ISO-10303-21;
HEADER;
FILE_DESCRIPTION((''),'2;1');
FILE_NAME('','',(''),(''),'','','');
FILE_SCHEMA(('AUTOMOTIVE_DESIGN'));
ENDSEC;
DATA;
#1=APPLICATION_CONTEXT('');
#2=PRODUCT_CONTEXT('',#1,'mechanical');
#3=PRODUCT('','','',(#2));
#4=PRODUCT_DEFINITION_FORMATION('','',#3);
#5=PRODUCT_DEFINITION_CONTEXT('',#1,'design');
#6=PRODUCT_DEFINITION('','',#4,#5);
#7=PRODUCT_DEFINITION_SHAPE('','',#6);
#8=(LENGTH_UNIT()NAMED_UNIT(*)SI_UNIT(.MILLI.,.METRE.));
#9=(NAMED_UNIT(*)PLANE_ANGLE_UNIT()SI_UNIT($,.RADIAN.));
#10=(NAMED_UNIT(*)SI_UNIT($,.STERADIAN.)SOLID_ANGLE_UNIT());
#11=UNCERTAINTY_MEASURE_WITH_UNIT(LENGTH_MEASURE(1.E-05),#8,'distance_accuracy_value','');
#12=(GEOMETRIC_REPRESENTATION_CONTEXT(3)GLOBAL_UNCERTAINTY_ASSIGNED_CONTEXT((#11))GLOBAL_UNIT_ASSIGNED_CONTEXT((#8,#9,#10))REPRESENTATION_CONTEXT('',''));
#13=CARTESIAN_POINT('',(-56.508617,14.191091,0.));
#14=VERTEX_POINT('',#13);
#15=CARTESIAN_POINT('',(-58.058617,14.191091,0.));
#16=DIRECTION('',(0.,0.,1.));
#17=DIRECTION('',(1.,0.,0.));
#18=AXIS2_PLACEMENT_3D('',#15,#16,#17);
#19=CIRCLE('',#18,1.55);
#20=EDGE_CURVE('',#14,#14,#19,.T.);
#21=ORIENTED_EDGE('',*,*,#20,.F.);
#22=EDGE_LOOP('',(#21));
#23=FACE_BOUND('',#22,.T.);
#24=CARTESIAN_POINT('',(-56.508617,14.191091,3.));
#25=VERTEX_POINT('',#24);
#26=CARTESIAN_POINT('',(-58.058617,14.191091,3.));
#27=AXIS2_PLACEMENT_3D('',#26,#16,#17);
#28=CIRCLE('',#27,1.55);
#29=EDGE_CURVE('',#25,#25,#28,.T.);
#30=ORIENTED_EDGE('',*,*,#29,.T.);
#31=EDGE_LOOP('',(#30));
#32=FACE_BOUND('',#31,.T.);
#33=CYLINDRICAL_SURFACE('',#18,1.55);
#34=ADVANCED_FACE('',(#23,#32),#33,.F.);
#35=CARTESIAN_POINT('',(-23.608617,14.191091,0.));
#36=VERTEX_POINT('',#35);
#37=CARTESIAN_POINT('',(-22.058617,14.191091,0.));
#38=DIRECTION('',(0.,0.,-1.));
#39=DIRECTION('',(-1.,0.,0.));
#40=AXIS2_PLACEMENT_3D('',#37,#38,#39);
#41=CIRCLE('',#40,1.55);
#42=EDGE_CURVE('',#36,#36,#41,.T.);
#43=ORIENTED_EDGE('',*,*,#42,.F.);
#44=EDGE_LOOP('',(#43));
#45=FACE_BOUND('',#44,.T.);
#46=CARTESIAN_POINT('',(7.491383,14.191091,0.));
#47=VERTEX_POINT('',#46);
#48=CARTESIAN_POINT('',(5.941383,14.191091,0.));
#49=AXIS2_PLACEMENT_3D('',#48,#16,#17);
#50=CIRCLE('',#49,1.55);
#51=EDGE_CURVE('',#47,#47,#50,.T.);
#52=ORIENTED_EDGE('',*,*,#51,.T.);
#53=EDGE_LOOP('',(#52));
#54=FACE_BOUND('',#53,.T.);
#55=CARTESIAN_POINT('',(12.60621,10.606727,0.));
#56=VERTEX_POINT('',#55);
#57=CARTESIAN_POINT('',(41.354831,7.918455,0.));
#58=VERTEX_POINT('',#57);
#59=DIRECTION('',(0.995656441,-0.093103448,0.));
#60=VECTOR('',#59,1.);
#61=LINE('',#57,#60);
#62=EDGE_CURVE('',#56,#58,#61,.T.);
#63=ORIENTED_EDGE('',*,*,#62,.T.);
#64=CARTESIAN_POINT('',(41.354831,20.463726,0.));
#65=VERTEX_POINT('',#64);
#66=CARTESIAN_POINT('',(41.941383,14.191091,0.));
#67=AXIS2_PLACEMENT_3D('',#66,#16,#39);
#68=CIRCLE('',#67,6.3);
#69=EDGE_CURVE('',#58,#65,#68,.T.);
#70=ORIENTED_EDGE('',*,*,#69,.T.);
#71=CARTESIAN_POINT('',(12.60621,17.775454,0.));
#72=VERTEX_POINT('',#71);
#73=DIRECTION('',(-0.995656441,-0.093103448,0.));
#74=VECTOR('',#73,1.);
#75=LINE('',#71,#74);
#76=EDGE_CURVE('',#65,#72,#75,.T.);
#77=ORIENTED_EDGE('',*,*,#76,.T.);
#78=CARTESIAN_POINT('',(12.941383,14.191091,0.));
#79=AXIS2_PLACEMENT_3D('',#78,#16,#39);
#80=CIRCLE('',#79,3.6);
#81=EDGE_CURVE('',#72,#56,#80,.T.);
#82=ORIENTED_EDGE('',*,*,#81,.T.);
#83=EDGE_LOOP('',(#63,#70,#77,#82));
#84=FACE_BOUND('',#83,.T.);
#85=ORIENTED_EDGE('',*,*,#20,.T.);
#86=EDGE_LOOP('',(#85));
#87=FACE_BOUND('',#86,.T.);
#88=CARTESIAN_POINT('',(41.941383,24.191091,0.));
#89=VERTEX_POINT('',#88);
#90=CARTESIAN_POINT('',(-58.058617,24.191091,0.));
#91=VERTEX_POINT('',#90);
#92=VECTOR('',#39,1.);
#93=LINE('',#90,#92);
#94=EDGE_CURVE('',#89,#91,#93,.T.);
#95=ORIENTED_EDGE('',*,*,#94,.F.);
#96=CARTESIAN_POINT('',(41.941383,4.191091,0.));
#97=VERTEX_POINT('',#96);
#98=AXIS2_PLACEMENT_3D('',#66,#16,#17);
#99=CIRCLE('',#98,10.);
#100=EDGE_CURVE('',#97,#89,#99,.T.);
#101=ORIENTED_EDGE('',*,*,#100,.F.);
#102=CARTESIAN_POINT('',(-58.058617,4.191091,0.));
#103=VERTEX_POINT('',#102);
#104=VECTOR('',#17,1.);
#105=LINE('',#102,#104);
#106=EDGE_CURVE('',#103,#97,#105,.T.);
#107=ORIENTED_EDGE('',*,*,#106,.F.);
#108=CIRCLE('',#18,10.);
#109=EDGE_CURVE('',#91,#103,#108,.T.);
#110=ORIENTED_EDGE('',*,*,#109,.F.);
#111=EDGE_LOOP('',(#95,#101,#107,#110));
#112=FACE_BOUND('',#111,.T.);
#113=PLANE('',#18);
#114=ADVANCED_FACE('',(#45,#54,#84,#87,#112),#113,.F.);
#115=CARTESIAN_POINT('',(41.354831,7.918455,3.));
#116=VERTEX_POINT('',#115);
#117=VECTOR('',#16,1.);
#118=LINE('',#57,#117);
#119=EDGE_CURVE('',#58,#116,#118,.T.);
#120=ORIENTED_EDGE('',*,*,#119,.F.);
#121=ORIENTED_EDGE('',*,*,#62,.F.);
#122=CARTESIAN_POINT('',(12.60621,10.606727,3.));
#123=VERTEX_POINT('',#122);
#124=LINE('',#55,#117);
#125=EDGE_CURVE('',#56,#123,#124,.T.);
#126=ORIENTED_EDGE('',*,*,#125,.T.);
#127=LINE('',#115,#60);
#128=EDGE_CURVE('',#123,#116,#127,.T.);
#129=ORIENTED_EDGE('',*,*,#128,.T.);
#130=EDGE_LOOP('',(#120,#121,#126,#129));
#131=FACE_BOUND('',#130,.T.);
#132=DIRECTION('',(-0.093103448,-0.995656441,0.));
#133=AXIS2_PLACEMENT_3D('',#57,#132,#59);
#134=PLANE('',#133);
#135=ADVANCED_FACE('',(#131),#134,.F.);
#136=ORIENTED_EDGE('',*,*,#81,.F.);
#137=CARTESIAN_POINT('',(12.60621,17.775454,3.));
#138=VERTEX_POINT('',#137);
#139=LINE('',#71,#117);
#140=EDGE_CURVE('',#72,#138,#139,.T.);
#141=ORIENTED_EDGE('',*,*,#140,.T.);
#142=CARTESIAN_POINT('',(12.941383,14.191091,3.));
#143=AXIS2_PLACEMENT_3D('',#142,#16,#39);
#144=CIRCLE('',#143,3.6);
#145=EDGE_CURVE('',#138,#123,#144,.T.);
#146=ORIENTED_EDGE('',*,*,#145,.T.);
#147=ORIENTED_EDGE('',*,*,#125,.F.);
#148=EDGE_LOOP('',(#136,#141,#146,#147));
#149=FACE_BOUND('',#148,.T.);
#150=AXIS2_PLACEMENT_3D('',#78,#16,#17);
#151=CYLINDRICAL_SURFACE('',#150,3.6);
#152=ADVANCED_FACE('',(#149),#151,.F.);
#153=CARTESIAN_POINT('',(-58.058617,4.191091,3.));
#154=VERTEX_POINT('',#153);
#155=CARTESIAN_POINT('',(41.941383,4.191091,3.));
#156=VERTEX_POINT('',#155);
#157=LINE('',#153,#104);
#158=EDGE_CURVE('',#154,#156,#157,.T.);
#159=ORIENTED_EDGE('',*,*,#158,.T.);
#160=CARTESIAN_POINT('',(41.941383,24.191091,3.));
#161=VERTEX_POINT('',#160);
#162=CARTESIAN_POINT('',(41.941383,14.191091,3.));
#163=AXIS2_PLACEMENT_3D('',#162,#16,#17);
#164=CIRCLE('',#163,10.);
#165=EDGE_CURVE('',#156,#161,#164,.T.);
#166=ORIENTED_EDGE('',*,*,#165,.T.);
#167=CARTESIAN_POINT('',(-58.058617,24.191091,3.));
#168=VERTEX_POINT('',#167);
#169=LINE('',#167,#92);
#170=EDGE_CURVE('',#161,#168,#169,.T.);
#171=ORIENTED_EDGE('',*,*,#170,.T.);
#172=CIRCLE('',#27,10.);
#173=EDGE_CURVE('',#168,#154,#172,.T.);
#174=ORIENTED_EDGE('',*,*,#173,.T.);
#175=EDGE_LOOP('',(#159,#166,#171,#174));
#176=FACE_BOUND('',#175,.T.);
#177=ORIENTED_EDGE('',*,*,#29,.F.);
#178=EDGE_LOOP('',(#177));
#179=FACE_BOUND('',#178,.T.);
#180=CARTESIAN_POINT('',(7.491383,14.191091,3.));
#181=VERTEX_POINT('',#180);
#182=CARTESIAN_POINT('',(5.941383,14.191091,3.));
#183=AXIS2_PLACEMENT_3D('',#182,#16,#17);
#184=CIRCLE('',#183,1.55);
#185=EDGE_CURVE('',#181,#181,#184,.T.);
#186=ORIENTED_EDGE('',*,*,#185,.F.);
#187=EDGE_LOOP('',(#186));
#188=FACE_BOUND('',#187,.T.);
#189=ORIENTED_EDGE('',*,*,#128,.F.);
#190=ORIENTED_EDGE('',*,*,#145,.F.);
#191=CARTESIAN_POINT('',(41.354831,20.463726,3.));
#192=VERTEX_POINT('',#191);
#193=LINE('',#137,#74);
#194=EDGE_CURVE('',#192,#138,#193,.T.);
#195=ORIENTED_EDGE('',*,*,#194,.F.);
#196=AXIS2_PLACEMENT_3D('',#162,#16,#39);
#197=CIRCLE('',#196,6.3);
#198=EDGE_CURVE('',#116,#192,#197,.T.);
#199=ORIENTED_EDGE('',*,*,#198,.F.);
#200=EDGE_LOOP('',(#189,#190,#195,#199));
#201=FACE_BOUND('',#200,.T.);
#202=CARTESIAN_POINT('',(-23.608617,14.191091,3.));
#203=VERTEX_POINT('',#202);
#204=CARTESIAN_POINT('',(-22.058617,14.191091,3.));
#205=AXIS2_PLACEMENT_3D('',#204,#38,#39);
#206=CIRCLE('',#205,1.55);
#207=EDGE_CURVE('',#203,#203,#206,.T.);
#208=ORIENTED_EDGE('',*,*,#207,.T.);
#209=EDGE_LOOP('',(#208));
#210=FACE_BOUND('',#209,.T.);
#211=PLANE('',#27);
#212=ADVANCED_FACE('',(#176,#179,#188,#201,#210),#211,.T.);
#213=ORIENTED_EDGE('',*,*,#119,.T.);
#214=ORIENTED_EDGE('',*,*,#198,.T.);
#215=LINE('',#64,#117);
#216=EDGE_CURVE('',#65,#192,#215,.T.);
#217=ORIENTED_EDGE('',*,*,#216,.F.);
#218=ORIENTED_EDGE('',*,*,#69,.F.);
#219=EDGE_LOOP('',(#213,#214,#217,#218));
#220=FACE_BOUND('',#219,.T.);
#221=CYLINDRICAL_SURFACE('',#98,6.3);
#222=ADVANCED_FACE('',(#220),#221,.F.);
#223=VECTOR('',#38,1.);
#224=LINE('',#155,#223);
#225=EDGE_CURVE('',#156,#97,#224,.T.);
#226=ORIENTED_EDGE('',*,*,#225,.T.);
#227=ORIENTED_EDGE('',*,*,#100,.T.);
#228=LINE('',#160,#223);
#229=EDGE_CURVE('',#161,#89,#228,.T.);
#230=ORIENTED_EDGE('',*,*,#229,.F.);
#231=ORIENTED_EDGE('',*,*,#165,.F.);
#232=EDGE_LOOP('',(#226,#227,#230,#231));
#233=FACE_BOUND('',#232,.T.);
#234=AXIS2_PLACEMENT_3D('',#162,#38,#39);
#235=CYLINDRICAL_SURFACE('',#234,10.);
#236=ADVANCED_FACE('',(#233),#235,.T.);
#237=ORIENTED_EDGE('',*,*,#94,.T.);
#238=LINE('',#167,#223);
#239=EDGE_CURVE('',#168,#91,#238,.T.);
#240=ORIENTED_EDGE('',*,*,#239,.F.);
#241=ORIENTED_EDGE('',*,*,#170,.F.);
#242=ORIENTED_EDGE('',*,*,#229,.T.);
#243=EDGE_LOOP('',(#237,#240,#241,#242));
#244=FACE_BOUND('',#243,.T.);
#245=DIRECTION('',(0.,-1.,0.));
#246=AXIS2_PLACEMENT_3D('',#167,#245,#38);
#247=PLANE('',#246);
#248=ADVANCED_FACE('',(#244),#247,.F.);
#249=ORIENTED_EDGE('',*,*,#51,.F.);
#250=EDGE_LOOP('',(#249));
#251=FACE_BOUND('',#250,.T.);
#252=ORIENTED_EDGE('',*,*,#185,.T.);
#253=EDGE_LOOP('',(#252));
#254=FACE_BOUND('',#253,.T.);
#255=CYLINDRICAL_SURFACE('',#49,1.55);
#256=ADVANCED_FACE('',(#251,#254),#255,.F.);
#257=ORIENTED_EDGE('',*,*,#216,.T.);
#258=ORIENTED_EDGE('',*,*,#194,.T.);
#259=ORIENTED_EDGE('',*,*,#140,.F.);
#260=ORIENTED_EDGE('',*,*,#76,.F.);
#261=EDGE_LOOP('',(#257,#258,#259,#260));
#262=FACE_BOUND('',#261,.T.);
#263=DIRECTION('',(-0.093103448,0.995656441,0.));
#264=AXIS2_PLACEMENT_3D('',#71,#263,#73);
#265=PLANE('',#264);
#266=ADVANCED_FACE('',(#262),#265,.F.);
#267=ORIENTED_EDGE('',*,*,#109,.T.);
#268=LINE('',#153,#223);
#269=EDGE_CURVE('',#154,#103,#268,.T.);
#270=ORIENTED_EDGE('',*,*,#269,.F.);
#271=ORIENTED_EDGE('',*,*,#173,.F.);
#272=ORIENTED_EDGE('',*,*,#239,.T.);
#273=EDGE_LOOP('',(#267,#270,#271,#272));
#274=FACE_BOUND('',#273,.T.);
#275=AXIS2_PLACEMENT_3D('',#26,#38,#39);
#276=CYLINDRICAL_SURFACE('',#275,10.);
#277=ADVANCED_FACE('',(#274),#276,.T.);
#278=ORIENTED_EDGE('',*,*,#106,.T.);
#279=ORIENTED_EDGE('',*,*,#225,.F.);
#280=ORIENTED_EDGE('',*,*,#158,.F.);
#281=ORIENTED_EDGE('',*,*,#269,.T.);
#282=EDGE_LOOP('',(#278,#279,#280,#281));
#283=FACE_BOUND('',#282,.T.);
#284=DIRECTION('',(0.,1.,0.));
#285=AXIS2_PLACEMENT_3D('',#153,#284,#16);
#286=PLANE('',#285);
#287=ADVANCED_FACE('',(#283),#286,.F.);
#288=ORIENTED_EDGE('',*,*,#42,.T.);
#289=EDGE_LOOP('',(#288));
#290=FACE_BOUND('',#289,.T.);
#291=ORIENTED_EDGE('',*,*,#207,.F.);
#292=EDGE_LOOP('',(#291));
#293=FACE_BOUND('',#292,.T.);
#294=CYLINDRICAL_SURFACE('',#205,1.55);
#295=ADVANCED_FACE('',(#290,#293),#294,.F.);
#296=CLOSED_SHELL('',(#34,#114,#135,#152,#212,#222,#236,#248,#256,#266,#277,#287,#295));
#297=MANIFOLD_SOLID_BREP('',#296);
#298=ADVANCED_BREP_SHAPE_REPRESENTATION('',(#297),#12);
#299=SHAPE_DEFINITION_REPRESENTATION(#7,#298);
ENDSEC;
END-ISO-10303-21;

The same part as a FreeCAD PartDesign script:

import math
import FreeCAD as App
import Part
import Sketcher

V = App.Vector

doc = App.newDocument("Part")
body = doc.addObject("PartDesign::Body", "Body")

sketch1 = doc.addObject("Sketcher::SketchObject", "Sketch")
body.addObject(sketch1)
sketch1.AttachmentSupport = (doc.XY_Plane, [""])
sketch1.MapMode = "FlatFace"
sketch1.addGeometry([
    Part.LineSegment(V(42, 24, 0), V(-58, 24, 0)),
    Part.ArcOfCircle(Part.Circle(V(-58, 14, 0), V(0, 0, 1), 10), math.radians(90), math.radians(270)),
    Part.LineSegment(V(-58, 4, 0), V(42, 4, 0)),
    Part.ArcOfCircle(Part.Circle(V(42, 14, 0), V(0, 0, 1), 10), math.radians(-90), math.radians(90)),
], False)
sketch1.addConstraint([
    Sketcher.Constraint("Tangent", 0, 2, 1, 1),
    Sketcher.Constraint("Tangent", 1, 2, 2, 1),
    Sketcher.Constraint("Tangent", 2, 2, 3, 1),
    Sketcher.Constraint("Tangent", 3, 2, 0, 1),
    Sketcher.Constraint("Horizontal", 0),
    Sketcher.Constraint("Horizontal", 2),
    Sketcher.Constraint("Radius", 1, 10.0),
    Sketcher.Constraint("DistanceX", 0, 2, 0, 1, 100.0),
    Sketcher.Constraint("DistanceY", -1, 1, 1, 3, 14.191091),
    Sketcher.Constraint("DistanceX", 1, 3, -1, 1, 58.058617),
])
pad1 = doc.addObject("PartDesign::Pad", "Pad")
body.addObject(pad1)
pad1.Profile = sketch1
pad1.Length = 3

sketch2 = doc.addObject("Sketcher::SketchObject", "Sketch001")
body.addObject(sketch2)
sketch2.AttachmentSupport = (doc.XY_Plane, [""])
sketch2.MapMode = "FlatFace"
sketch2.AttachmentOffset = App.Placement(V(0, 0, 3), App.Rotation())
sketch2.addGeometry(Part.Circle(V(-58.1, 14.2, 0), V(0, 0, 1), 1.6), False)
sketch2.addConstraint([
    Sketcher.Constraint("Diameter", 0, 3.1),
    Sketcher.Constraint("DistanceY", -1, 1, 0, 3, 14.191091),
    Sketcher.Constraint("DistanceX", 0, 3, -1, 1, 58.058617),
])
pocket1 = doc.addObject("PartDesign::Pocket", "Pocket")
body.addObject(pocket1)
pocket1.Profile = sketch2
pocket1.Length = 3

sketch3 = doc.addObject("Sketcher::SketchObject", "Sketch002")
body.addObject(sketch3)
sketch3.AttachmentSupport = (doc.XY_Plane, [""])
sketch3.MapMode = "FlatFace"
sketch3.AttachmentOffset = App.Placement(V(0, 0, 3), App.Rotation())
sketch3.addGeometry(Part.Circle(V(5.9, 14.2, 0), V(0, 0, 1), 1.6), False)
sketch3.addConstraint([
    Sketcher.Constraint("Diameter", 0, 3.1),
    Sketcher.Constraint("DistanceY", -1, 1, 0, 3, 14.191091),
    Sketcher.Constraint("DistanceX", -1, 1, 0, 3, 5.941383),
])
pocket2 = doc.addObject("PartDesign::Pocket", "Pocket001")
body.addObject(pocket2)
pocket2.Profile = sketch3
pocket2.Length = 3

sketch4 = doc.addObject("Sketcher::SketchObject", "Sketch003")
body.addObject(sketch4)
sketch4.AttachmentSupport = (doc.XY_Plane, [""])
sketch4.MapMode = "FlatFace"
sketch4.addGeometry(Part.Circle(V(-22.1, 14.2, 0), V(0, 0, 1), 1.6), False)
sketch4.addConstraint([
    Sketcher.Constraint("Diameter", 0, 3.1),
    Sketcher.Constraint("DistanceY", -1, 1, 0, 3, 14.191091),
    Sketcher.Constraint("DistanceX", 0, 3, -1, 1, 22.058617),
])
pocket3 = doc.addObject("PartDesign::Pocket", "Pocket002")
body.addObject(pocket3)
pocket3.Profile = sketch4
pocket3.Length = 3
pocket3.Reversed = True

sketch5 = doc.addObject("Sketcher::SketchObject", "Sketch004")
body.addObject(sketch5)
sketch5.AttachmentSupport = (doc.XY_Plane, [""])
sketch5.MapMode = "FlatFace"
sketch5.AttachmentOffset = App.Placement(V(0, 0, 3), App.Rotation())
sketch5.addGeometry([
    Part.LineSegment(V(41.4, 20.5, 0), V(12.6, 17.8, 0)),
    Part.ArcOfCircle(Part.Circle(V(12.9, 14.2, 0), V(0, 0, 1), 3.6), math.radians(95), math.radians(265)),
    Part.LineSegment(V(12.6, 10.6, 0), V(41.4, 7.9, 0)),
    Part.ArcOfCircle(Part.Circle(V(41.9, 14.2, 0), V(0, 0, 1), 6.3), math.radians(-95), math.radians(95)),
], False)
sketch5.addConstraint([
    Sketcher.Constraint("Tangent", 0, 2, 1, 1),
    Sketcher.Constraint("Tangent", 1, 2, 2, 1),
    Sketcher.Constraint("Tangent", 2, 2, 3, 1),
    Sketcher.Constraint("Tangent", 3, 2, 0, 1),
    Sketcher.Constraint("Horizontal", 1, 3, 3, 3),
    Sketcher.Constraint("Radius", 1, 3.6),
    Sketcher.Constraint("Radius", 3, 6.3),
    Sketcher.Constraint("DistanceX", 1, 3, 3, 3, 29.0),
    Sketcher.Constraint("DistanceY", -1, 1, 1, 3, 14.191091),
    Sketcher.Constraint("DistanceX", -1, 1, 0, 2, 12.60621),
])
pocket4 = doc.addObject("PartDesign::Pocket", "Pocket003")
body.addObject(pocket4)
pocket4.Profile = sketch5
pocket4.Length = 3

doc.recompute()
